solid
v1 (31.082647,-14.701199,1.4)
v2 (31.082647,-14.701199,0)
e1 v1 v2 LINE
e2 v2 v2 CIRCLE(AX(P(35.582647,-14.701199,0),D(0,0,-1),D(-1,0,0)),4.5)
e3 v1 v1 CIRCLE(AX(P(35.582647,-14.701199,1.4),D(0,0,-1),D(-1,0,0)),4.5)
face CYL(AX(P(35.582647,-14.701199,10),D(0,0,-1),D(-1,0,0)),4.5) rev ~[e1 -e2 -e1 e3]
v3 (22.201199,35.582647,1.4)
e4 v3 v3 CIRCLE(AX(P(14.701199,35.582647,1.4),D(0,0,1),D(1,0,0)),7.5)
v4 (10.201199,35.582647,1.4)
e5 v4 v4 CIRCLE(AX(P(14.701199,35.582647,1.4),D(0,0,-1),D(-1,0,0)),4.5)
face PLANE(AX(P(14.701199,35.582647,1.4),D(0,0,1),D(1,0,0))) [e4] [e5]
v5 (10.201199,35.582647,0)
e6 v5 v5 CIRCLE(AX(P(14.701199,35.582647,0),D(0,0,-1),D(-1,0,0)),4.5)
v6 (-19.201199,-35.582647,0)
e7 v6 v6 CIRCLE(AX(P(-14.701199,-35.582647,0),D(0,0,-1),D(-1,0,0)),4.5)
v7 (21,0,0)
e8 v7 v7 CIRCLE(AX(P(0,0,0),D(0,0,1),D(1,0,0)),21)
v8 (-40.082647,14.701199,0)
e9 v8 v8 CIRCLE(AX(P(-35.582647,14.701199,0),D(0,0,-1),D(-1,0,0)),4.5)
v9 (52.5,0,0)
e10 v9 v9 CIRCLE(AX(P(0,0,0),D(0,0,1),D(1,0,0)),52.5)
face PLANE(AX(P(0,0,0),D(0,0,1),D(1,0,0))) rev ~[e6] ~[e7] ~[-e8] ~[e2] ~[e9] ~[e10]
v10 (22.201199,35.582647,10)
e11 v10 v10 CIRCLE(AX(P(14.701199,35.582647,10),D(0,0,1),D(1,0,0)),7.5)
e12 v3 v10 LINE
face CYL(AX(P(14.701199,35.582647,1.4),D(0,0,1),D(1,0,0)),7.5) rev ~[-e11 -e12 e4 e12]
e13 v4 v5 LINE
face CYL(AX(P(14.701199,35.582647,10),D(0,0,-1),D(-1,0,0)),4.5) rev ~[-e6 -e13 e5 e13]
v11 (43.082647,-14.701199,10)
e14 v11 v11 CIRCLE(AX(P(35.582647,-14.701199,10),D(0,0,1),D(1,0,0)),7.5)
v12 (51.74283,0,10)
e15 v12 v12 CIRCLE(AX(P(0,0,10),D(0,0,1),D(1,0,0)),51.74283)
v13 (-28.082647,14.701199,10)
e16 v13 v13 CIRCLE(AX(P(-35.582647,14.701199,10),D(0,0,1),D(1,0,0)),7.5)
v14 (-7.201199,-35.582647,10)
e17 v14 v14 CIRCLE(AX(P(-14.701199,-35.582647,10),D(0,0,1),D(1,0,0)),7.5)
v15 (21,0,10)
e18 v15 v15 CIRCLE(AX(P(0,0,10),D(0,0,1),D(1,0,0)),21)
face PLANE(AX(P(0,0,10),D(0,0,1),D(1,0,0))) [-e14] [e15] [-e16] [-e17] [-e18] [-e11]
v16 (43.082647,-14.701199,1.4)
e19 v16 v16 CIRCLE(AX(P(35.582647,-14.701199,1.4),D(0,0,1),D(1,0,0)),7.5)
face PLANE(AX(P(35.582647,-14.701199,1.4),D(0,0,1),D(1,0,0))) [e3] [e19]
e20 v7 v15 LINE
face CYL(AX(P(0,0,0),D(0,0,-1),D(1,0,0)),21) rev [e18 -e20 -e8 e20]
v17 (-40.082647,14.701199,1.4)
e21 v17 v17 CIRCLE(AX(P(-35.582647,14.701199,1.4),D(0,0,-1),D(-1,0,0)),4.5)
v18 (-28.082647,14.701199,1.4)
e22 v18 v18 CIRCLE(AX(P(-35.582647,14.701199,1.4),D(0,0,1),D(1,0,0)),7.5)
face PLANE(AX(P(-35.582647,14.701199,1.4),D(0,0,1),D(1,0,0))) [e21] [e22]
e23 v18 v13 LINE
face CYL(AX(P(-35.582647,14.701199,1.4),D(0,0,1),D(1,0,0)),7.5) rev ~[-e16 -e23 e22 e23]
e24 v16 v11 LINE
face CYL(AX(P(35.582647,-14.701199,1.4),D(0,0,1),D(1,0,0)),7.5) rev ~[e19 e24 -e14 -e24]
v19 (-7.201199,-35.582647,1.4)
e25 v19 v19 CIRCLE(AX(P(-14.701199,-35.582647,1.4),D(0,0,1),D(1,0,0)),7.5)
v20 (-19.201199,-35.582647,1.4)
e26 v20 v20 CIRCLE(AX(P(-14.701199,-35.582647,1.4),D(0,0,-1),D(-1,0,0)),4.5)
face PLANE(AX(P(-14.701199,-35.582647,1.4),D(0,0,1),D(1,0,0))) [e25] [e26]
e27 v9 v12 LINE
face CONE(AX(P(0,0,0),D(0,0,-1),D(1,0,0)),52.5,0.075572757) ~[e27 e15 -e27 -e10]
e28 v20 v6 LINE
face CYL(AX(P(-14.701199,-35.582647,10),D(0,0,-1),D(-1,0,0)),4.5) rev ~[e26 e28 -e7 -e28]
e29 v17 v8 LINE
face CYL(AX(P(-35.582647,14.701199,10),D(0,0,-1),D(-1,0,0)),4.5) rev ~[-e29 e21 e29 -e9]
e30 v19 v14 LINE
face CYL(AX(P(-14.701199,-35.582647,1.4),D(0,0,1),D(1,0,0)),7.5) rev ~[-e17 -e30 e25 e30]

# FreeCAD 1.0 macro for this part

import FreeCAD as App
import Part
import Sketcher
Q = App.Units.Quantity


def faces_at(feature, points):
    """Names of the faces that lie closest to the given points."""
    faces = feature.Shape.Faces
    near = lambda p: min(range(len(faces)), key=lambda i: faces[i].distToShape(Part.Vertex(*p))[0])
    return sorted({f"Face{near(p) + 1}" for p in points})

doc = App.newDocument("Part")
params = doc.addObject("Spreadsheet::Sheet", "Params")
for row, (alias, value) in enumerate([
    ("sketch1_diameter", "105 mm"),
    ("sketch1_diameter2", "42 mm"),
    ("pad1_length", "10 mm"),
    ("draft_angle", "4.33 deg"),
    ("sketch2_diameter", "9 mm"),
    ("hole_diameter", "9 mm"),
    ("hole_depth", "22.25 mm"),
    ("hole_cbore_diameter", "15 mm"),
    ("hole_cbore_depth", "8.6 mm"),
    ("sketch3_diameter", "44 mm"),
    ("sketch3_diameter2", "42 mm"),
    ("pad2_length", "10 mm"),
], start=1):
    params.set(f"A{row}", alias)
    params.set(f"B{row}", "=" + value)
    params.setAlias(f"B{row}", alias)

body = doc.addObject("PartDesign::Body", "Body")

# Sketch on XY plane
sketch1 = body.newObject("Sketcher::SketchObject", "Sketch")
sketch1.AttachmentSupport = (doc.getObject("XY_Plane"), [""])
sketch1.MapMode = "FlatFace"
sketch1.addGeometry(Part.Circle(App.Vector(0, 0, 0), App.Vector(0, 0, 1), 52), False)
sketch1.addGeometry(Part.Circle(App.Vector(0, 0, 0), App.Vector(0, 0, 1), 21), False)
sketch1.addConstraint(Sketcher.Constraint("Coincident", 0, 3, -1, 1))
sketch1.addConstraint(Sketcher.Constraint("Coincident", 1, 3, -1, 1))
sketch1.addConstraint(Sketcher.Constraint("Diameter", 0, Q("105 mm")))
sketch1.addConstraint(Sketcher.Constraint("Diameter", 1, Q("42 mm")))
sketch1.setExpression("Constraints[2]", "Params.sketch1_diameter")
sketch1.setExpression("Constraints[3]", "Params.sketch1_diameter2")
pad1 = body.newObject("PartDesign::Pad", "Pad")
pad1.Profile = sketch1
pad1.setExpression("Length", "Params.pad1_length")
doc.recompute()

draft = body.newObject("PartDesign::Draft", "Draft")
draft.Base = (pad1, faces_at(pad1, [(-52.5, 0, 5), (-21, 0, 5)]))
draft.NeutralPlane = (doc.getObject("XY_Plane"), [""])
draft.setExpression("Angle", "Params.draft_angle")
draft.Reversed = False

# Sketch on XY plane
sketch2 = body.newObject("Sketcher::SketchObject", "Sketch001")
sketch2.AttachmentSupport = (doc.getObject("XY_Plane"), [""])
sketch2.MapMode = "FlatFace"
sketch2.AttachmentOffset = App.Placement(App.Vector(0, 0, 10), App.Rotation())
sketch2.addGeometry(Part.Circle(App.Vector(14.7, 35.6, 0), App.Vector(0, 0, 1), 4.5), False)
sketch2.addGeometry(Part.Circle(App.Vector(-35.6, 14.7, 0), App.Vector(0, 0, 1), 4.5), False)
sketch2.addGeometry(Part.Circle(App.Vector(-14.7, -35.6, 0), App.Vector(0, 0, 1), 4.5), False)
sketch2.addGeometry(Part.Circle(App.Vector(35.6, -14.7, 0), App.Vector(0, 0, 1), 4.5), False)
sketch2.addConstraint(Sketcher.Constraint("Equal", 0, 1))
sketch2.addConstraint(Sketcher.Constraint("Equal", 1, 2))
sketch2.addConstraint(Sketcher.Constraint("Equal", 2, 3))
sketch2.addConstraint(Sketcher.Constraint("Symmetric", 0, 3, 2, 3, -1, 1))
sketch2.addConstraint(Sketcher.Constraint("Symmetric", 1, 3, 3, 3, -1, 1))
sketch2.addConstraint(Sketcher.Constraint("Diameter", 0, Q("9 mm")))
sketch2.addConstraint(Sketcher.Constraint("DistanceX", -1, 1, 0, 3, Q("14.701199 mm")))
sketch2.addConstraint(Sketcher.Constraint("DistanceY", -1, 1, 1, 3, Q("14.701199 mm")))
sketch2.addConstraint(Sketcher.Constraint("DistanceY", 1, 3, 0, 3, Q("20.881448 mm")))
sketch2.addConstraint(Sketcher.Constraint("DistanceX", 1, 3, 2, 3, Q("20.881448 mm")))
sketch2.setExpression("Constraints[5]", "Params.sketch2_diameter")
doc.recompute()
hole = body.newObject("PartDesign::Hole", "Hole")
hole.Profile = sketch2
hole.ThreadType = "None"
hole.setExpression("Diameter", "Params.hole_diameter")
hole.DepthType = "Dimension"
hole.setExpression("Depth", "Params.hole_depth")
hole.DrillPoint = "Angled"
hole.DrillPointAngle = 118
hole.HoleCutType = "Counterbore"
hole.setExpression("HoleCutDiameter", "Params.hole_cbore_diameter")
hole.setExpression("HoleCutDepth", "Params.hole_cbore_depth")

# Sketch on XY plane
sketch3 = body.newObject("Sketcher::SketchObject", "Sketch002")
sketch3.AttachmentSupport = (doc.getObject("XY_Plane"), [""])
sketch3.MapMode = "FlatFace"
sketch3.addGeometry(Part.Circle(App.Vector(0, 0, 0), App.Vector(0, 0, 1), 22), False)
sketch3.addGeometry(Part.Circle(App.Vector(0, 0, 0), App.Vector(0, 0, 1), 21), False)
sketch3.addConstraint(Sketcher.Constraint("Coincident", 0, 3, -1, 1))
sketch3.addConstraint(Sketcher.Constraint("Coincident", 1, 3, -1, 1))
sketch3.addConstraint(Sketcher.Constraint("Diameter", 0, Q("44 mm")))
sketch3.addConstraint(Sketcher.Constraint("Diameter", 1, Q("42 mm")))
sketch3.setExpression("Constraints[2]", "Params.sketch3_diameter")
sketch3.setExpression("Constraints[3]", "Params.sketch3_diameter2")
pad2 = body.newObject("PartDesign::Pad", "Pad001")
pad2.Profile = sketch3
pad2.setExpression("Length", "Params.pad2_length")

doc.recompute()
